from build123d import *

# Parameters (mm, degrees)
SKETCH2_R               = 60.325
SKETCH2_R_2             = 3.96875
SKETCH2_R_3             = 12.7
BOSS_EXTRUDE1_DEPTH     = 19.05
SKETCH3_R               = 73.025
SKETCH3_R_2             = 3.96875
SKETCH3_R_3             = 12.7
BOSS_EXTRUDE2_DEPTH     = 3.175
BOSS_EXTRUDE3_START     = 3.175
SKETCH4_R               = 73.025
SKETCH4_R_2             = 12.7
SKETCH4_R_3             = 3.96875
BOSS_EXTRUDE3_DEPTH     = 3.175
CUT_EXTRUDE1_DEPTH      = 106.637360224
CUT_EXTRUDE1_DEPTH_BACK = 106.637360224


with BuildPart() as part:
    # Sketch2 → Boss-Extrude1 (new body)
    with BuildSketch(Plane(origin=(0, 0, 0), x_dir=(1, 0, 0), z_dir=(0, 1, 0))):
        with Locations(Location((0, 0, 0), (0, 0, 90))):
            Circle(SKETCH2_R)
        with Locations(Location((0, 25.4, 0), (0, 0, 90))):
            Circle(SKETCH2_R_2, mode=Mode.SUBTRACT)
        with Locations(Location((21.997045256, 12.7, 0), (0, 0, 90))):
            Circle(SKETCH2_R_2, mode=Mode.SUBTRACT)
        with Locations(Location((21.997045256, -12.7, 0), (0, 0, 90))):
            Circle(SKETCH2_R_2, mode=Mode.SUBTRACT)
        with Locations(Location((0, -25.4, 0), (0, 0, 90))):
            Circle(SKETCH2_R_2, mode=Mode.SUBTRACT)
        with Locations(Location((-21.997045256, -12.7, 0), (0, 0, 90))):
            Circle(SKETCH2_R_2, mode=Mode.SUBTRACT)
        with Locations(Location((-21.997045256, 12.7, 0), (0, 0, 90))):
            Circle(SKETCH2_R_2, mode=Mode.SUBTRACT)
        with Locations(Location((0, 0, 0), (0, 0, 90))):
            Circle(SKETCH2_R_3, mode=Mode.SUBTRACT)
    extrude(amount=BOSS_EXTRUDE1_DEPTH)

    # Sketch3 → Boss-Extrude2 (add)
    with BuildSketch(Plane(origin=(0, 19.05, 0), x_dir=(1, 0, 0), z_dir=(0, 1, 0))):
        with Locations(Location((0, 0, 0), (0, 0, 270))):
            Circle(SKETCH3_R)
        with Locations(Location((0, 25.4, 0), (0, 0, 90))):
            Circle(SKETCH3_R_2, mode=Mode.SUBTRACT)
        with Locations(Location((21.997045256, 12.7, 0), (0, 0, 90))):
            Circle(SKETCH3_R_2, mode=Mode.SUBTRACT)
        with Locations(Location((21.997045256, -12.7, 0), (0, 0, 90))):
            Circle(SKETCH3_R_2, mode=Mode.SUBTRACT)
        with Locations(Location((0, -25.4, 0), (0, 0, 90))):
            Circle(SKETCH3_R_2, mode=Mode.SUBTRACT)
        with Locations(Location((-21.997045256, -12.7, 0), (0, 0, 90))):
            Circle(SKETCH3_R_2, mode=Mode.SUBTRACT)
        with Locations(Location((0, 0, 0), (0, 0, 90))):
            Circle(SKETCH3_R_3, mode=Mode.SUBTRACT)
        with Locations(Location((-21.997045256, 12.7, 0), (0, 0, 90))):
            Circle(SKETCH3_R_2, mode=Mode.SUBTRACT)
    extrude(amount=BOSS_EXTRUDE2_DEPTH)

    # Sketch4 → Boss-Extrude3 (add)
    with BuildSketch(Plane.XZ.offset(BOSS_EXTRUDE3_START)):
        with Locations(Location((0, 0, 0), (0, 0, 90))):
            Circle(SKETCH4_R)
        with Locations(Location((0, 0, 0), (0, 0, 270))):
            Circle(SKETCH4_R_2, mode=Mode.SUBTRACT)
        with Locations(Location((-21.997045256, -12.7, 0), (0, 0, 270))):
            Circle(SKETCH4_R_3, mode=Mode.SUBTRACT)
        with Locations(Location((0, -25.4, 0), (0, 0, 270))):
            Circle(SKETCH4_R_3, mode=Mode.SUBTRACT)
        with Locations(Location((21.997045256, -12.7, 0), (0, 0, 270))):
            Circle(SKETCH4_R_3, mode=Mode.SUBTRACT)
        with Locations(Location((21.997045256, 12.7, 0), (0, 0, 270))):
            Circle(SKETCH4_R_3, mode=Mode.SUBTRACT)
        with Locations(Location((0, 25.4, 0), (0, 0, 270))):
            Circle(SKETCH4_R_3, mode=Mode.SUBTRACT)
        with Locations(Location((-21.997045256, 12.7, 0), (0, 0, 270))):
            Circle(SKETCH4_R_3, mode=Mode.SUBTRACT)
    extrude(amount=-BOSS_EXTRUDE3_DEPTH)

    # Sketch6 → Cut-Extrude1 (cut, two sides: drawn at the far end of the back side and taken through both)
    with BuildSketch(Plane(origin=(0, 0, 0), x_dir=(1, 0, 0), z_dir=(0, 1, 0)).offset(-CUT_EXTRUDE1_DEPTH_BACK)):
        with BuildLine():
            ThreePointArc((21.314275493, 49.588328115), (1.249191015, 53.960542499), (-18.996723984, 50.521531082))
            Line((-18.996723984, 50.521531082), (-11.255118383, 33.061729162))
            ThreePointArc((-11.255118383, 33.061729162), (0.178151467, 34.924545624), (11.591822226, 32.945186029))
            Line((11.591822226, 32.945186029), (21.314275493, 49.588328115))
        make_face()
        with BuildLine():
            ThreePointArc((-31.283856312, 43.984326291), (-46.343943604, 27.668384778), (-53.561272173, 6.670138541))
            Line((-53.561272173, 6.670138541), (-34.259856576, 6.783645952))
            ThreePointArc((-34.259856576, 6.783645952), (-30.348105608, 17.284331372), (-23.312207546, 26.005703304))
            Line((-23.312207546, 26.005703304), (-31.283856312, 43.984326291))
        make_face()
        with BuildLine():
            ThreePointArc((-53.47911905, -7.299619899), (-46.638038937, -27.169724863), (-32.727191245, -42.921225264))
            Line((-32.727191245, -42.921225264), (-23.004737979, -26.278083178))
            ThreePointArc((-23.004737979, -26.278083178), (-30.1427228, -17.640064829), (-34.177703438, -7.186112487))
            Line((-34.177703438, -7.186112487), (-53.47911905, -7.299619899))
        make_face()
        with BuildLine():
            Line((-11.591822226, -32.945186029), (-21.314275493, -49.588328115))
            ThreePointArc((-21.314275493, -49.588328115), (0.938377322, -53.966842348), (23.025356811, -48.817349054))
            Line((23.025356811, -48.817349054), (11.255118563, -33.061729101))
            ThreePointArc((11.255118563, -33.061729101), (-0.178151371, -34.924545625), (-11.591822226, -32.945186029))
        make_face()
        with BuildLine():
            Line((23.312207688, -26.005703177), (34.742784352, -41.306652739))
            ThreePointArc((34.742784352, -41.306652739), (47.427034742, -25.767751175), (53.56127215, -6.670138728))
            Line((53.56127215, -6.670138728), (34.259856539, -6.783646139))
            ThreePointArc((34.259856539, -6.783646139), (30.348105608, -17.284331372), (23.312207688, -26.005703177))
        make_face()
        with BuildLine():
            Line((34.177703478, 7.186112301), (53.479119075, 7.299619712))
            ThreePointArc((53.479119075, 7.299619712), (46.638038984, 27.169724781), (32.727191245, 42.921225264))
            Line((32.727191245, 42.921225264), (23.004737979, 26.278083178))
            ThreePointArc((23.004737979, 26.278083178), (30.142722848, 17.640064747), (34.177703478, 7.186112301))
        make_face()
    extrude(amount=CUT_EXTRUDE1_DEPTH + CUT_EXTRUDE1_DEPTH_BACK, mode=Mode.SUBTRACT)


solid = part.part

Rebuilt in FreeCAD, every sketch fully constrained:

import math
import FreeCAD as App
import Part
import Sketcher
Q = App.Units.Quantity

doc = App.newDocument("Part")
params = doc.addObject("Spreadsheet::Sheet", "Params")
for row, (alias, value) in enumerate([
    ("sketch1_diameter", "1 in"),
    ("sketch1_diameter2", "4.75 in"),
    ("sketch1_diameter3", "0.3125 in"),
    ("pad1_length", "0.75 in"),
    ("sketch2_diameter", "1 in"),
    ("sketch2_diameter2", "5.75 in"),
    ("sketch2_diameter3", "0.3125 in"),
    ("pad2_length", "0.125 in"),
    ("sketch3_diameter", "1 in"),
    ("sketch3_diameter2", "5.75 in"),
    ("sketch3_diameter3", "0.3125 in"),
    ("pad3_length", "0.125 in"),
    ("sketch4_radius", "2.125 in"),
    ("sketch4_radius2", "1.375 in"),
], start=1):
    params.set(f"A{row}", alias)
    params.set(f"B{row}", "=" + value)
    params.setAlias(f"B{row}", alias)

body = doc.addObject("PartDesign::Body", "Body")

# Sketch on XZ plane
sketch1 = body.newObject("Sketcher::SketchObject", "Sketch")
sketch1.AttachmentSupport = (doc.getObject("XZ_Plane"), [""])
sketch1.MapMode = "FlatFace"
sketch1.addGeometry(Part.Circle(App.Vector(0, 0, 0), App.Vector(0, 0, 1), 60.325), False)
sketch1.addGeometry(Part.Circle(App.Vector(21.997045, 12.7, 0), App.Vector(0, 0, 1), 3.96875), False)
sketch1.addGeometry(Part.Circle(App.Vector(0, 25.4, 0), App.Vector(0, 0, 1), 3.96875), False)
sketch1.addGeometry(Part.Circle(App.Vector(21.997045, -12.7, 0), App.Vector(0, 0, 1), 3.96875), False)
sketch1.addGeometry(Part.Circle(App.Vector(0, 0, 0), App.Vector(0, 0, 1), 12.7), False)
sketch1.addGeometry(Part.Circle(App.Vector(-21.997045, 12.7, 0), App.Vector(0, 0, 1), 3.96875), False)
sketch1.addGeometry(Part.Circle(App.Vector(0, -25.4, 0), App.Vector(0, 0, 1), 3.96875), False)
sketch1.addGeometry(Part.Circle(App.Vector(-21.997045, -12.7, 0), App.Vector(0, 0, 1), 3.96875), False)
sketch1.addConstraint(Sketcher.Constraint("Coincident", 0, 3, -1, 1))
sketch1.addConstraint(Sketcher.Constraint("Coincident", 4, 3, -1, 1))
sketch1.addConstraint(Sketcher.Constraint("Equal", 1, 2))
sketch1.addConstraint(Sketcher.Constraint("Equal", 2, 3))
sketch1.addConstraint(Sketcher.Constraint("Equal", 3, 5))
sketch1.addConstraint(Sketcher.Constraint("Equal", 5, 6))
sketch1.addConstraint(Sketcher.Constraint("Equal", 6, 7))
sketch1.addConstraint(Sketcher.Constraint("Symmetric", 3, 3, 5, 3, -1, 1))
sketch1.addConstraint(Sketcher.Constraint("Symmetric", 2, 3, 6, 3, -1, 1))
sketch1.addConstraint(Sketcher.Constraint("Symmetric", 1, 3, 7, 3, -1, 1))
sketch1.addConstraint(Sketcher.Constraint("Symmetric", 1, 3, 5, 3, -2))
sketch1.addConstraint(Sketcher.Constraint("PointOnObject", 2, 3, -2))
sketch1.addConstraint(Sketcher.Constraint("Diameter", 4, Q("1 in")))
sketch1.addConstraint(Sketcher.Constraint("Diameter", 0, Q("4.75 in")))
sketch1.addConstraint(Sketcher.Constraint("Diameter", 1, Q("0.3125 in")))
sketch1.addConstraint(Sketcher.Constraint("DistanceY", -1, 1, 2, 3, Q("1 in")))
sketch1.addConstraint(Sketcher.Constraint("DistanceY", 3, 3, 1, 3, Q("1 in")))
sketch1.addConstraint(Sketcher.Constraint("DistanceX", 5, 3, 1, 3, Q("43.994091 mm")))
sketch1.setExpression("Constraints[12]", "Params.sketch1_diameter")
sketch1.setExpression("Constraints[13]", "Params.sketch1_diameter2")
sketch1.setExpression("Constraints[14]", "Params.sketch1_diameter3")
pad1 = body.newObject("PartDesign::Pad", "Pad")
pad1.Profile = sketch1
pad1.setExpression("Length", "Params.pad1_length")
pad1.Reversed = True

# Sketch on XZ plane
sketch2 = body.newObject("Sketcher::SketchObject", "Sketch001")
sketch2.AttachmentSupport = (doc.getObject("XZ_Plane"), [""])
sketch2.MapMode = "FlatFace"
sketch2.AttachmentOffset = App.Placement(App.Vector(0, 0, -0.75 * 25.4), App.Rotation())
sketch2.addGeometry(Part.Circle(App.Vector(0, 0, 0), App.Vector(0, 0, 1), 73.025), False)
sketch2.addGeometry(Part.Circle(App.Vector(-21.997045, -12.7, 0), App.Vector(0, 0, 1), 3.96875), False)
sketch2.addGeometry(Part.Circle(App.Vector(0, -25.4, 0), App.Vector(0, 0, 1), 3.96875), False)
sketch2.addGeometry(Part.Circle(App.Vector(-21.997045, 12.7, 0), App.Vector(0, 0, 1), 3.96875), False)
sketch2.addGeometry(Part.Circle(App.Vector(21.997045, -12.7, 0), App.Vector(0, 0, 1), 3.96875), False)
sketch2.addGeometry(Part.Circle(App.Vector(0, 0, 0), App.Vector(0, 0, 1), 12.7), False)
sketch2.addGeometry(Part.Circle(App.Vector(0, 25.4, 0), App.Vector(0, 0, 1), 3.96875), False)
sketch2.addGeometry(Part.Circle(App.Vector(21.997045, 12.7, 0), App.Vector(0, 0, 1), 3.96875), False)
sketch2.addConstraint(Sketcher.Constraint("Coincident", 0, 3, -1, 1))
sketch2.addConstraint(Sketcher.Constraint("Coincident", 5, 3, -1, 1))
sketch2.addConstraint(Sketcher.Constraint("Equal", 1, 2))
sketch2.addConstraint(Sketcher.Constraint("Equal", 2, 3))
sketch2.addConstraint(Sketcher.Constraint("Equal", 3, 4))
sketch2.addConstraint(Sketcher.Constraint("Equal", 4, 6))
sketch2.addConstraint(Sketcher.Constraint("Equal", 6, 7))
sketch2.addConstraint(Sketcher.Constraint("Symmetric", 3, 3, 4, 3, -1, 1))
sketch2.addConstraint(Sketcher.Constraint("Symmetric", 2, 3, 6, 3, -1, 1))
sketch2.addConstraint(Sketcher.Constraint("Symmetric", 1, 3, 7, 3, -1, 1))
sketch2.addConstraint(Sketcher.Constraint("Symmetric", 1, 3, 4, 3, -2))
sketch2.addConstraint(Sketcher.Constraint("PointOnObject", 2, 3, -2))
sketch2.addConstraint(Sketcher.Constraint("Diameter", 5, Q("1 in")))
sketch2.addConstraint(Sketcher.Constraint("Diameter", 0, Q("5.75 in")))
sketch2.addConstraint(Sketcher.Constraint("Diameter", 1, Q("0.3125 in")))
sketch2.addConstraint(Sketcher.Constraint("DistanceY", 2, 3, -1, 1, Q("1 in")))
sketch2.addConstraint(Sketcher.Constraint("DistanceY", 1, 3, 3, 3, Q("1 in")))
sketch2.addConstraint(Sketcher.Constraint("DistanceX", 1, 3, 4, 3, Q("43.994091 mm")))
sketch2.setExpression("Constraints[12]", "Params.sketch2_diameter")
sketch2.setExpression("Constraints[13]", "Params.sketch2_diameter2")
sketch2.setExpression("Constraints[14]", "Params.sketch2_diameter3")
pad2 = body.newObject("PartDesign::Pad", "Pad001")
pad2.Profile = sketch2
pad2.setExpression("Length", "Params.pad2_length")
pad2.Reversed = True

# Sketch on XZ plane
sketch3 = body.newObject("Sketcher::SketchObject", "Sketch002")
sketch3.AttachmentSupport = (doc.getObject("XZ_Plane"), [""])
sketch3.MapMode = "FlatFace"
sketch3.AttachmentOffset = App.Placement(App.Vector(0, 0, 0.125 * 25.4), App.Rotation())
sketch3.addGeometry(Part.Circle(App.Vector(0, 0, 0), App.Vector(0, 0, 1), 73.025), False)
sketch3.addGeometry(Part.Circle(App.Vector(21.997045, -12.7, 0), App.Vector(0, 0, 1), 3.96875), False)
sketch3.addGeometry(Part.Circle(App.Vector(0, -25.4, 0), App.Vector(0, 0, 1), 3.96875), False)
sketch3.addGeometry(Part.Circle(App.Vector(21.997045, 12.7, 0), App.Vector(0, 0, 1), 3.96875), False)
sketch3.addGeometry(Part.Circle(App.Vector(-21.997045, -12.7, 0), App.Vector(0, 0, 1), 3.96875), False)
sketch3.addGeometry(Part.Circle(App.Vector(0, 0, 0), App.Vector(0, 0, 1), 12.7), False)
sketch3.addGeometry(Part.Circle(App.Vector(0, 25.4, 0), App.Vector(0, 0, 1), 3.96875), False)
sketch3.addGeometry(Part.Circle(App.Vector(-21.997045, 12.7, 0), App.Vector(0, 0, 1), 3.96875), False)
sketch3.addConstraint(Sketcher.Constraint("Coincident", 0, 3, -1, 1))
sketch3.addConstraint(Sketcher.Constraint("Coincident", 5, 3, -1, 1))
sketch3.addConstraint(Sketcher.Constraint("Equal", 1, 2))
sketch3.addConstraint(Sketcher.Constraint("Equal", 2, 3))
sketch3.addConstraint(Sketcher.Constraint("Equal", 3, 4))
sketch3.addConstraint(Sketcher.Constraint("Equal", 4, 6))
sketch3.addConstraint(Sketcher.Constraint("Equal", 6, 7))
sketch3.addConstraint(Sketcher.Constraint("Symmetric", 3, 3, 4, 3, -1, 1))
sketch3.addConstraint(Sketcher.Constraint("Symmetric", 2, 3, 6, 3, -1, 1))
sketch3.addConstraint(Sketcher.Constraint("Symmetric", 1, 3, 7, 3, -1, 1))
sketch3.addConstraint(Sketcher.Constraint("Symmetric", 1, 3, 4, 3, -2))
sketch3.addConstraint(Sketcher.Constraint("PointOnObject", 2, 3, -2))
sketch3.addConstraint(Sketcher.Constraint("Diameter", 5, Q("1 in")))
sketch3.addConstraint(Sketcher.Constraint("Diameter", 0, Q("5.75 in")))
sketch3.addConstraint(Sketcher.Constraint("Diameter", 1, Q("0.3125 in")))
sketch3.addConstraint(Sketcher.Constraint("DistanceY", 2, 3, -1, 1, Q("1 in")))
sketch3.addConstraint(Sketcher.Constraint("DistanceY", 1, 3, 3, 3, Q("1 in")))
sketch3.addConstraint(Sketcher.Constraint("DistanceX", 4, 3, 1, 3, Q("43.994091 mm")))
sketch3.setExpression("Constraints[12]", "Params.sketch3_diameter")
sketch3.setExpression("Constraints[13]", "Params.sketch3_diameter2")
sketch3.setExpression("Constraints[14]", "Params.sketch3_diameter3")
pad3 = body.newObject("PartDesign::Pad", "Pad002")
pad3.Profile = sketch3
pad3.setExpression("Length", "Params.pad3_length")
pad3.Reversed = True

# Sketch on XZ plane
sketch4 = body.newObject("Sketcher::SketchObject", "Sketch003")
sketch4.AttachmentSupport = (doc.getObject("XZ_Plane"), [""])
sketch4.MapMode = "FlatFace"
sketch4.addGeometry(Part.ArcOfCircle(Part.Circle(App.Vector(0, 0, 0), App.Vector(0, 0, 1), 53.975), math.radians(-110.606885), math.radians(-66.740785)), False)
sketch4.addGeometry(Part.LineSegment(App.Vector(-18.996724, -50.521531, 0), App.Vector(-11.255118, -33.061729, 0)), False)
sketch4.addGeometry(Part.ArcOfCircle(Part.Circle(App.Vector(0, 0, 0), App.Vector(0, 0, 1), 34.925), math.radians(-108.799981), math.radians(-70.615488)), False)
sketch4.addGeometry(Part.LineSegment(App.Vector(11.591822, -32.945186, 0), App.Vector(21.314275, -49.588328, 0)), False)
sketch4.addGeometry(Part.ArcOfCircle(Part.Circle(App.Vector(0, 0, 0), App.Vector(0, 0, 1), 53.975), math.radians(-172.901338), math.radians(-125.422344)), False)
sketch4.addGeometry(Part.LineSegment(App.Vector(-53.561272, -6.670139, 0), App.Vector(-34.259857, -6.783646, 0)), False)
sketch4.addGeometry(Part.ArcOfCircle(Part.Circle(App.Vector(0, 0, 0), App.Vector(0, 0, 1), 34.925), math.radians(-168.799981), math.radians(-131.873899)), False)
sketch4.addGeometry(Part.LineSegment(App.Vector(-23.312208, -26.005703, 0), App.Vector(-31.283856, -43.984326, 0)), False)
sketch4.addGeometry(Part.ArcOfCircle(Part.Circle(App.Vector(0, 0, 0), App.Vector(0, 0, 1), 53.975), math.radians(127.325315), math.radians(172.227458)), False)
sketch4.addGeometry(Part.LineSegment(App.Vector(-32.727191, 42.921225, 0), App.Vector(-23.004738, 26.278083, 0)), False)
sketch4.addGeometry(Part.ArcOfCircle(Part.Circle(App.Vector(0, 0, 0), App.Vector(0, 0, 1), 34.925), math.radians(131.200019), math.radians(168.126101)), False)
sketch4.addGeometry(Part.LineSegment(App.Vector(-34.177703, 7.186112, 0), App.Vector(-53.479119, 7.29962, 0)), False)
sketch4.addGeometry(Part.LineSegment(App.Vector(-11.591822, 32.945186, 0), App.Vector(-21.314275, 49.588328, 0)), False)
sketch4.addGeometry(Part.ArcOfCircle(Part.Circle(App.Vector(0, 0, 0), App.Vector(0, 0, 1), 53.975), math.radians(64.748464), math.radians(113.259215)), False)
sketch4.addGeometry(Part.LineSegment(App.Vector(23.025357, 48.817349, 0), App.Vector(11.255119, 33.061729, 0)), False)
sketch4.addGeometry(Part.ArcOfCircle(Part.Circle(App.Vector(0, 0, 0), App.Vector(0, 0, 1), 34.925), math.radians(71.200019), math.radians(109.384512)), False)
sketch4.addGeometry(Part.LineSegment(App.Vector(23.312208, 26.005703, 0), App.Vector(34.742784, 41.306653, 0)), False)
sketch4.addGeometry(Part.ArcOfCircle(Part.Circle(App.Vector(0, 0, 0), App.Vector(0, 0, 1), 53.975), math.radians(7.098662), math.radians(49.933005)), False)
sketch4.addGeometry(Part.LineSegment(App.Vector(53.561272, 6.670139, 0), App.Vector(34.259857, 6.783646, 0)), False)
sketch4.addGeometry(Part.ArcOfCircle(Part.Circle(App.Vector(0, 0, 0), App.Vector(0, 0, 1), 34.925), math.radians(11.200019), math.radians(48.126101)), False)
sketch4.addGeometry(Part.LineSegment(App.Vector(34.177703, -7.186112, 0), App.Vector(53.479119, -7.29962, 0)), False)
sketch4.addGeometry(Part.ArcOfCircle(Part.Circle(App.Vector(0, 0, 0), App.Vector(0, 0, 1), 53.975), math.radians(-52.674685), math.radians(-7.772542)), False)
sketch4.addGeometry(Part.LineSegment(App.Vector(32.727191, -42.921225, 0), App.Vector(23.004738, -26.278083, 0)), False)
sketch4.addGeometry(Part.ArcOfCircle(Part.Circle(App.Vector(0, 0, 0), App.Vector(0, 0, 1), 34.925), math.radians(-48.799981), math.radians(-11.873899)), False)
sketch4.addConstraint(Sketcher.Constraint("Coincident", 0, 1, 1, 1))
sketch4.addConstraint(Sketcher.Constraint("Coincident", 1, 2, 2, 1))
sketch4.addConstraint(Sketcher.Constraint("Coincident", 2, 2, 3, 1))
sketch4.addConstraint(Sketcher.Constraint("Coincident", 3, 2, 0, 2))
sketch4.addConstraint(Sketcher.Constraint("Coincident", 4, 1, 5, 1))
sketch4.addConstraint(Sketcher.Constraint("Coincident", 5, 2, 6, 1))
sketch4.addConstraint(Sketcher.Constraint("Coincident", 6, 2, 7, 1))
sketch4.addConstraint(Sketcher.Constraint("Coincident", 7, 2, 4, 2))
sketch4.addConstraint(Sketcher.Constraint("Coincident", 8, 1, 9, 1))
sketch4.addConstraint(Sketcher.Constraint("Coincident", 9, 2, 10, 1))
sketch4.addConstraint(Sketcher.Constraint("Coincident", 10, 2, 11, 1))
sketch4.addConstraint(Sketcher.Constraint("Coincident", 11, 2, 8, 2))
sketch4.addConstraint(Sketcher.Constraint("Coincident", 12, 2, 13, 2))
sketch4.addConstraint(Sketcher.Constraint("Coincident", 13, 1, 14, 1))
sketch4.addConstraint(Sketcher.Constraint("Coincident", 14, 2, 15, 1))
sketch4.addConstraint(Sketcher.Constraint("Coincident", 15, 2, 12, 1))
sketch4.addConstraint(Sketcher.Constraint("Coincident", 16, 2, 17, 2))
sketch4.addConstraint(Sketcher.Constraint("Coincident", 17, 1, 18, 1))
sketch4.addConstraint(Sketcher.Constraint("Coincident", 18, 2, 19, 1))
sketch4.addConstraint(Sketcher.Constraint("Coincident", 19, 2, 16, 1))
sketch4.addConstraint(Sketcher.Constraint("Coincident", 20, 2, 21, 2))
sketch4.addConstraint(Sketcher.Constraint("Coincident", 21, 1, 22, 1))
sketch4.addConstraint(Sketcher.Constraint("Coincident", 22, 2, 23, 1))
sketch4.addConstraint(Sketcher.Constraint("Coincident", 23, 2, 20, 1))
sketch4.addConstraint(Sketcher.Constraint("Coincident", 0, 3, -1, 1))
sketch4.addConstraint(Sketcher.Constraint("Coincident", 2, 3, -1, 1))
sketch4.addConstraint(Sketcher.Constraint("Coincident", 4, 3, -1, 1))
sketch4.addConstraint(Sketcher.Constraint("Coincident", 6, 3, -1, 1))
sketch4.addConstraint(Sketcher.Constraint("Coincident", 8, 3, -1, 1))
sketch4.addConstraint(Sketcher.Constraint("Coincident", 10, 3, -1, 1))
sketch4.addConstraint(Sketcher.Constraint("Coincident", 13, 3, -1, 1))
sketch4.addConstraint(Sketcher.Constraint("Coincident", 15, 3, -1, 1))
sketch4.addConstraint(Sketcher.Constraint("Coincident", 17, 3, -1, 1))
sketch4.addConstraint(Sketcher.Constraint("Coincident", 19, 3, -1, 1))
sketch4.addConstraint(Sketcher.Constraint("Coincident", 21, 3, -1, 1))
sketch4.addConstraint(Sketcher.Constraint("Coincident", 23, 3, -1, 1))
sketch4.addConstraint(Sketcher.Constraint("Equal", 0, 4))
sketch4.addConstraint(Sketcher.Constraint("Equal", 2, 6))
sketch4.addConstraint(Sketcher.Constraint("Equal", 4, 8))
sketch4.addConstraint(Sketcher.Constraint("Equal", 6, 10))
sketch4.addConstraint(Sketcher.Constraint("Equal", 8, 13))
sketch4.addConstraint(Sketcher.Constraint("Equal", 10, 15))
sketch4.addConstraint(Sketcher.Constraint("Equal", 13, 17))
sketch4.addConstraint(Sketcher.Constraint("Equal", 15, 19))
sketch4.addConstraint(Sketcher.Constraint("Equal", 17, 21))
sketch4.addConstraint(Sketcher.Constraint("Equal", 19, 23))
sketch4.addConstraint(Sketcher.Constraint("Parallel", 1, 7))
sketch4.addConstraint(Sketcher.Constraint("Parallel", 3, 9))
sketch4.addConstraint(Sketcher.Constraint("Parallel", 5, 11))
sketch4.addConstraint(Sketcher.Constraint("Parallel", 9, 12))
sketch4.addConstraint(Sketcher.Constraint("Parallel", 14, 16))
sketch4.addConstraint(Sketcher.Constraint("Parallel", 11, 18))
sketch4.addConstraint(Sketcher.Constraint("Parallel", 18, 20))
sketch4.addConstraint(Sketcher.Constraint("Parallel", 12, 22))
sketch4.addConstraint(Sketcher.Constraint("Equal", 3, 9))
sketch4.addConstraint(Sketcher.Constraint("Equal", 5, 11))
sketch4.addConstraint(Sketcher.Constraint("Equal", 9, 12))
sketch4.addConstraint(Sketcher.Constraint("Equal", 7, 14))
sketch4.addConstraint(Sketcher.Constraint("Equal", 1, 16))
sketch4.addConstraint(Sketcher.Constraint("Equal", 11, 18))
sketch4.addConstraint(Sketcher.Constraint("Equal", 18, 20))
sketch4.addConstraint(Sketcher.Constraint("Equal", 12, 22))
sketch4.addConstraint(Sketcher.Constraint("Radius", 0, Q("2.125 in")))
sketch4.addConstraint(Sketcher.Constraint("Radius", 2, Q("1.375 in")))
sketch4.addConstraint(Sketcher.Constraint("DistanceY", 14, 2, 13, 1, Q("0.6203 in")))
sketch4.addConstraint(Sketcher.Constraint("DistanceY", 0, 1, 1, 2, Q("17.459802 mm")))
sketch4.addConstraint(Sketcher.Constraint("DistanceY", 3, 2, 1, 2, Q("16.526599 mm")))
sketch4.addConstraint(Sketcher.Constraint("DistanceX", 0, 1, 3, 2, Q("40.310999 mm")))
sketch4.addConstraint(Sketcher.Constraint("DistanceX", 5, 2, 7, 2, Q("2.976 mm")))
sketch4.addConstraint(Sketcher.Constraint("Distance", 3, Q("19.274861 mm")))
sketch4.addConstraint(Sketcher.Constraint("Distance", 5, Q("19.301749 mm")))
sketch4.addConstraint(Sketcher.Constraint("DistanceY", 4, 1, -1, 1, Q("6.670139 mm")))
sketch4.setExpression("Constraints[62]", "Params.sketch4_radius")
sketch4.setExpression("Constraints[63]", "Params.sketch4_radius2")
pocket1 = body.newObject("PartDesign::Pocket", "Pocket")
pocket1.Profile = sketch4
pocket1.Type = "ThroughAll"
pocket1.Midplane = True

doc.recompute()
